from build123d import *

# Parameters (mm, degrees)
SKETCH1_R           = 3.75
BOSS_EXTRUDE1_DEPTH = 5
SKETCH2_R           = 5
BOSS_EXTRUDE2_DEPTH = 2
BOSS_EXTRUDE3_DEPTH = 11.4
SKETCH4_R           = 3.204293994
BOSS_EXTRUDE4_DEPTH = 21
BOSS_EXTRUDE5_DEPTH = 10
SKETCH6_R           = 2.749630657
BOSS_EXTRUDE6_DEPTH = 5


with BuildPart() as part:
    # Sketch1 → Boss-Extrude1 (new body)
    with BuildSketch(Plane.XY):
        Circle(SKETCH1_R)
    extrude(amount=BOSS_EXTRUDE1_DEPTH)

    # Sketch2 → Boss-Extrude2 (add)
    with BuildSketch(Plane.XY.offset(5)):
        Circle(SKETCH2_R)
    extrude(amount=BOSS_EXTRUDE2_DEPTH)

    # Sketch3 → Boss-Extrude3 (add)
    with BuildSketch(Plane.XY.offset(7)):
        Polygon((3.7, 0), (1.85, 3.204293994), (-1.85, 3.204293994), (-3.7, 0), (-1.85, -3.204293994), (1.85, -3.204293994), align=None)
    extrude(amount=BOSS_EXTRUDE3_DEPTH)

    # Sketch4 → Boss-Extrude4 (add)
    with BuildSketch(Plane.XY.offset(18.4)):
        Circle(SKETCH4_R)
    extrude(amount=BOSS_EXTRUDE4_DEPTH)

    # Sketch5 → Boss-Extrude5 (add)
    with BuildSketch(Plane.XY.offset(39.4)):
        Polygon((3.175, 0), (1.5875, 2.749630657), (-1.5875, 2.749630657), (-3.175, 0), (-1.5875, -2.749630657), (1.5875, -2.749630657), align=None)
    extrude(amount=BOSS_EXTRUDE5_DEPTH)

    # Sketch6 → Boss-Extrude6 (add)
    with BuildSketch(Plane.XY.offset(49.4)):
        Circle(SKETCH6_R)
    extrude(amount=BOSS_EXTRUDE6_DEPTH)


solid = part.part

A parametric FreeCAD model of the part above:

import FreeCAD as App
import Part
import Sketcher

V = App.Vector
Q = App.Units.Quantity

doc = App.newDocument("Part")
body = doc.addObject("PartDesign::Body", "Body")

# Sketch on XY plane
sketch1 = body.newObject("Sketcher::SketchObject", "Sketch")
sketch1.AttachmentSupport = (doc.getObject("XY_Plane"), [""])
sketch1.MapMode = "FlatFace"
sketch1.addGeometry(Part.Circle(V(0, 0, 0), V(0, 0, 1), 3.8), False)
sketch1.addConstraint([
    Sketcher.Constraint("Coincident", 0, 3, -1, 1),
    Sketcher.Constraint("Diameter", 0, Q("7.5 mm")),
])
pad1 = body.newObject("PartDesign::Pad", "Pad")
pad1.Profile = sketch1
pad1.Length = 5

# Sketch on XY plane
sketch2 = body.newObject("Sketcher::SketchObject", "Sketch001")
sketch2.AttachmentSupport = (doc.getObject("XY_Plane"), [""])
sketch2.MapMode = "FlatFace"
sketch2.AttachmentOffset = App.Placement(V(0, 0, 5), App.Rotation())
sketch2.addGeometry(Part.Circle(V(0, 0, 0), V(0, 0, 1), 5), False)
sketch2.addConstraint([
    Sketcher.Constraint("Coincident", 0, 3, -1, 1),
    Sketcher.Constraint("Diameter", 0, Q("10 mm")),
])
pad2 = body.newObject("PartDesign::Pad", "Pad001")
pad2.Profile = sketch2
pad2.Length = 2

# Sketch on XY plane
sketch3 = body.newObject("Sketcher::SketchObject", "Sketch002")
sketch3.AttachmentSupport = (doc.getObject("XY_Plane"), [""])
sketch3.MapMode = "FlatFace"
sketch3.AttachmentOffset = App.Placement(V(0, 0, 7), App.Rotation())
sketch3.addGeometry([
    Part.LineSegment(V(3.7, 0, 0), V(1.9, 3.2, 0)),  # 0
    Part.LineSegment(V(1.9, 3.2, 0), V(-1.9, 3.2, 0)),  # 1
    Part.LineSegment(V(-1.9, 3.2, 0), V(-3.7, 0, 0)),  # 2
    Part.LineSegment(V(-3.7, 0, 0), V(-1.9, -3.2, 0)),  # 3
    Part.LineSegment(V(-1.9, -3.2, 0), V(1.9, -3.2, 0)),  # 4
    Part.LineSegment(V(1.9, -3.2, 0), V(3.7, 0, 0)),  # 5
], False)
sketch3.addConstraint([
    Sketcher.Constraint("Coincident", 0, 2, 1, 1),
    Sketcher.Constraint("Coincident", 1, 2, 2, 1),
    Sketcher.Constraint("Coincident", 2, 2, 3, 1),
    Sketcher.Constraint("Coincident", 3, 2, 4, 1),
    Sketcher.Constraint("Coincident", 4, 2, 5, 1),
    Sketcher.Constraint("Coincident", 5, 2, 0, 1),
    Sketcher.Constraint("Horizontal", 1),
    Sketcher.Constraint("Horizontal", 4),
    Sketcher.Constraint("Symmetric", 0, 2, 3, 2, -1, 1),
    Sketcher.Constraint("Symmetric", 2, 2, 5, 2, -1, 1),
    Sketcher.Constraint("PointOnObject", 2, 2, -1),
    Sketcher.Constraint("Parallel", 2, 5),
    Sketcher.Constraint("Vertical", 1, 2, 3, 2),
    Sketcher.Constraint("Angle", 0, Q("120 deg")),
    Sketcher.Constraint("DistanceX", 1, 2, 1, 1, Q("3.7 mm")),
    Sketcher.Constraint("Distance", 0, Q("3.7 mm")),
])
pad3 = body.newObject("PartDesign::Pad", "Pad002")
pad3.Profile = sketch3
pad3.Length = 11.4

# Sketch on XY plane
sketch4 = body.newObject("Sketcher::SketchObject", "Sketch003")
sketch4.AttachmentSupport = (doc.getObject("XY_Plane"), [""])
sketch4.MapMode = "FlatFace"
sketch4.AttachmentOffset = App.Placement(V(0, 0, 18.4), App.Rotation())
sketch4.addGeometry(Part.Circle(V(0, 0, 0), V(0, 0, 1), 3.2), False)
sketch4.addConstraint([
    Sketcher.Constraint("Coincident", 0, 3, -1, 1),
    Sketcher.Constraint("Diameter", 0, Q("6.408588 mm")),
])
pad4 = body.newObject("PartDesign::Pad", "Pad003")
pad4.Profile = sketch4
pad4.Length = 21

# Sketch on XY plane
sketch5 = body.newObject("Sketcher::SketchObject", "Sketch004")
sketch5.AttachmentSupport = (doc.getObject("XY_Plane"), [""])
sketch5.MapMode = "FlatFace"
sketch5.AttachmentOffset = App.Placement(V(0, 0, 39.4), App.Rotation())
sketch5.addGeometry([
    Part.LineSegment(V(3.2, 0, 0), V(1.6, 2.7, 0)),  # 0
    Part.LineSegment(V(1.6, 2.7, 0), V(-1.6, 2.7, 0)),  # 1
    Part.LineSegment(V(-1.6, 2.7, 0), V(-3.2, 0, 0)),  # 2
    Part.LineSegment(V(-3.2, 0, 0), V(-1.6, -2.7, 0)),  # 3
    Part.LineSegment(V(-1.6, -2.7, 0), V(1.6, -2.7, 0)),  # 4
    Part.LineSegment(V(1.6, -2.7, 0), V(3.2, 0, 0)),  # 5
], False)
sketch5.addConstraint([
    Sketcher.Constraint("Coincident", 0, 2, 1, 1),
    Sketcher.Constraint("Coincident", 1, 2, 2, 1),
    Sketcher.Constraint("Coincident", 2, 2, 3, 1),
    Sketcher.Constraint("Coincident", 3, 2, 4, 1),
    Sketcher.Constraint("Coincident", 4, 2, 5, 1),
    Sketcher.Constraint("Coincident", 5, 2, 0, 1),
    Sketcher.Constraint("Horizontal", 1),
    Sketcher.Constraint("Horizontal", 4),
    Sketcher.Constraint("Symmetric", 0, 2, 3, 2, -1, 1),
    Sketcher.Constraint("Symmetric", 2, 2, 5, 2, -1, 1),
    Sketcher.Constraint("PointOnObject", 2, 2, -1),
    Sketcher.Constraint("Parallel", 2, 5),
    Sketcher.Constraint("Vertical", 1, 2, 3, 2),
    Sketcher.Constraint("Angle", 0, Q("120 deg")),
    Sketcher.Constraint("DistanceX", 1, 2, 1, 1, Q("3.175 mm")),
    Sketcher.Constraint("DistanceX", 2, 2, 5, 2, Q("6.35 mm")),
])
pad5 = body.newObject("PartDesign::Pad", "Pad004")
pad5.Profile = sketch5
pad5.Length = 10

# Sketch on XY plane
sketch6 = body.newObject("Sketcher::SketchObject", "Sketch005")
sketch6.AttachmentSupport = (doc.getObject("XY_Plane"), [""])
sketch6.MapMode = "FlatFace"
sketch6.AttachmentOffset = App.Placement(V(0, 0, 49.4), App.Rotation())
sketch6.addGeometry(Part.Circle(V(0, 0, 0), V(0, 0, 1), 2.7), False)
sketch6.addConstraint([
    Sketcher.Constraint("Coincident", 0, 3, -1, 1),
    Sketcher.Constraint("Diameter", 0, Q("5.499261 mm")),
])
pad6 = body.newObject("PartDesign::Pad", "Pad005")
pad6.Profile = sketch6
pad6.Length = 5

doc.recompute()
